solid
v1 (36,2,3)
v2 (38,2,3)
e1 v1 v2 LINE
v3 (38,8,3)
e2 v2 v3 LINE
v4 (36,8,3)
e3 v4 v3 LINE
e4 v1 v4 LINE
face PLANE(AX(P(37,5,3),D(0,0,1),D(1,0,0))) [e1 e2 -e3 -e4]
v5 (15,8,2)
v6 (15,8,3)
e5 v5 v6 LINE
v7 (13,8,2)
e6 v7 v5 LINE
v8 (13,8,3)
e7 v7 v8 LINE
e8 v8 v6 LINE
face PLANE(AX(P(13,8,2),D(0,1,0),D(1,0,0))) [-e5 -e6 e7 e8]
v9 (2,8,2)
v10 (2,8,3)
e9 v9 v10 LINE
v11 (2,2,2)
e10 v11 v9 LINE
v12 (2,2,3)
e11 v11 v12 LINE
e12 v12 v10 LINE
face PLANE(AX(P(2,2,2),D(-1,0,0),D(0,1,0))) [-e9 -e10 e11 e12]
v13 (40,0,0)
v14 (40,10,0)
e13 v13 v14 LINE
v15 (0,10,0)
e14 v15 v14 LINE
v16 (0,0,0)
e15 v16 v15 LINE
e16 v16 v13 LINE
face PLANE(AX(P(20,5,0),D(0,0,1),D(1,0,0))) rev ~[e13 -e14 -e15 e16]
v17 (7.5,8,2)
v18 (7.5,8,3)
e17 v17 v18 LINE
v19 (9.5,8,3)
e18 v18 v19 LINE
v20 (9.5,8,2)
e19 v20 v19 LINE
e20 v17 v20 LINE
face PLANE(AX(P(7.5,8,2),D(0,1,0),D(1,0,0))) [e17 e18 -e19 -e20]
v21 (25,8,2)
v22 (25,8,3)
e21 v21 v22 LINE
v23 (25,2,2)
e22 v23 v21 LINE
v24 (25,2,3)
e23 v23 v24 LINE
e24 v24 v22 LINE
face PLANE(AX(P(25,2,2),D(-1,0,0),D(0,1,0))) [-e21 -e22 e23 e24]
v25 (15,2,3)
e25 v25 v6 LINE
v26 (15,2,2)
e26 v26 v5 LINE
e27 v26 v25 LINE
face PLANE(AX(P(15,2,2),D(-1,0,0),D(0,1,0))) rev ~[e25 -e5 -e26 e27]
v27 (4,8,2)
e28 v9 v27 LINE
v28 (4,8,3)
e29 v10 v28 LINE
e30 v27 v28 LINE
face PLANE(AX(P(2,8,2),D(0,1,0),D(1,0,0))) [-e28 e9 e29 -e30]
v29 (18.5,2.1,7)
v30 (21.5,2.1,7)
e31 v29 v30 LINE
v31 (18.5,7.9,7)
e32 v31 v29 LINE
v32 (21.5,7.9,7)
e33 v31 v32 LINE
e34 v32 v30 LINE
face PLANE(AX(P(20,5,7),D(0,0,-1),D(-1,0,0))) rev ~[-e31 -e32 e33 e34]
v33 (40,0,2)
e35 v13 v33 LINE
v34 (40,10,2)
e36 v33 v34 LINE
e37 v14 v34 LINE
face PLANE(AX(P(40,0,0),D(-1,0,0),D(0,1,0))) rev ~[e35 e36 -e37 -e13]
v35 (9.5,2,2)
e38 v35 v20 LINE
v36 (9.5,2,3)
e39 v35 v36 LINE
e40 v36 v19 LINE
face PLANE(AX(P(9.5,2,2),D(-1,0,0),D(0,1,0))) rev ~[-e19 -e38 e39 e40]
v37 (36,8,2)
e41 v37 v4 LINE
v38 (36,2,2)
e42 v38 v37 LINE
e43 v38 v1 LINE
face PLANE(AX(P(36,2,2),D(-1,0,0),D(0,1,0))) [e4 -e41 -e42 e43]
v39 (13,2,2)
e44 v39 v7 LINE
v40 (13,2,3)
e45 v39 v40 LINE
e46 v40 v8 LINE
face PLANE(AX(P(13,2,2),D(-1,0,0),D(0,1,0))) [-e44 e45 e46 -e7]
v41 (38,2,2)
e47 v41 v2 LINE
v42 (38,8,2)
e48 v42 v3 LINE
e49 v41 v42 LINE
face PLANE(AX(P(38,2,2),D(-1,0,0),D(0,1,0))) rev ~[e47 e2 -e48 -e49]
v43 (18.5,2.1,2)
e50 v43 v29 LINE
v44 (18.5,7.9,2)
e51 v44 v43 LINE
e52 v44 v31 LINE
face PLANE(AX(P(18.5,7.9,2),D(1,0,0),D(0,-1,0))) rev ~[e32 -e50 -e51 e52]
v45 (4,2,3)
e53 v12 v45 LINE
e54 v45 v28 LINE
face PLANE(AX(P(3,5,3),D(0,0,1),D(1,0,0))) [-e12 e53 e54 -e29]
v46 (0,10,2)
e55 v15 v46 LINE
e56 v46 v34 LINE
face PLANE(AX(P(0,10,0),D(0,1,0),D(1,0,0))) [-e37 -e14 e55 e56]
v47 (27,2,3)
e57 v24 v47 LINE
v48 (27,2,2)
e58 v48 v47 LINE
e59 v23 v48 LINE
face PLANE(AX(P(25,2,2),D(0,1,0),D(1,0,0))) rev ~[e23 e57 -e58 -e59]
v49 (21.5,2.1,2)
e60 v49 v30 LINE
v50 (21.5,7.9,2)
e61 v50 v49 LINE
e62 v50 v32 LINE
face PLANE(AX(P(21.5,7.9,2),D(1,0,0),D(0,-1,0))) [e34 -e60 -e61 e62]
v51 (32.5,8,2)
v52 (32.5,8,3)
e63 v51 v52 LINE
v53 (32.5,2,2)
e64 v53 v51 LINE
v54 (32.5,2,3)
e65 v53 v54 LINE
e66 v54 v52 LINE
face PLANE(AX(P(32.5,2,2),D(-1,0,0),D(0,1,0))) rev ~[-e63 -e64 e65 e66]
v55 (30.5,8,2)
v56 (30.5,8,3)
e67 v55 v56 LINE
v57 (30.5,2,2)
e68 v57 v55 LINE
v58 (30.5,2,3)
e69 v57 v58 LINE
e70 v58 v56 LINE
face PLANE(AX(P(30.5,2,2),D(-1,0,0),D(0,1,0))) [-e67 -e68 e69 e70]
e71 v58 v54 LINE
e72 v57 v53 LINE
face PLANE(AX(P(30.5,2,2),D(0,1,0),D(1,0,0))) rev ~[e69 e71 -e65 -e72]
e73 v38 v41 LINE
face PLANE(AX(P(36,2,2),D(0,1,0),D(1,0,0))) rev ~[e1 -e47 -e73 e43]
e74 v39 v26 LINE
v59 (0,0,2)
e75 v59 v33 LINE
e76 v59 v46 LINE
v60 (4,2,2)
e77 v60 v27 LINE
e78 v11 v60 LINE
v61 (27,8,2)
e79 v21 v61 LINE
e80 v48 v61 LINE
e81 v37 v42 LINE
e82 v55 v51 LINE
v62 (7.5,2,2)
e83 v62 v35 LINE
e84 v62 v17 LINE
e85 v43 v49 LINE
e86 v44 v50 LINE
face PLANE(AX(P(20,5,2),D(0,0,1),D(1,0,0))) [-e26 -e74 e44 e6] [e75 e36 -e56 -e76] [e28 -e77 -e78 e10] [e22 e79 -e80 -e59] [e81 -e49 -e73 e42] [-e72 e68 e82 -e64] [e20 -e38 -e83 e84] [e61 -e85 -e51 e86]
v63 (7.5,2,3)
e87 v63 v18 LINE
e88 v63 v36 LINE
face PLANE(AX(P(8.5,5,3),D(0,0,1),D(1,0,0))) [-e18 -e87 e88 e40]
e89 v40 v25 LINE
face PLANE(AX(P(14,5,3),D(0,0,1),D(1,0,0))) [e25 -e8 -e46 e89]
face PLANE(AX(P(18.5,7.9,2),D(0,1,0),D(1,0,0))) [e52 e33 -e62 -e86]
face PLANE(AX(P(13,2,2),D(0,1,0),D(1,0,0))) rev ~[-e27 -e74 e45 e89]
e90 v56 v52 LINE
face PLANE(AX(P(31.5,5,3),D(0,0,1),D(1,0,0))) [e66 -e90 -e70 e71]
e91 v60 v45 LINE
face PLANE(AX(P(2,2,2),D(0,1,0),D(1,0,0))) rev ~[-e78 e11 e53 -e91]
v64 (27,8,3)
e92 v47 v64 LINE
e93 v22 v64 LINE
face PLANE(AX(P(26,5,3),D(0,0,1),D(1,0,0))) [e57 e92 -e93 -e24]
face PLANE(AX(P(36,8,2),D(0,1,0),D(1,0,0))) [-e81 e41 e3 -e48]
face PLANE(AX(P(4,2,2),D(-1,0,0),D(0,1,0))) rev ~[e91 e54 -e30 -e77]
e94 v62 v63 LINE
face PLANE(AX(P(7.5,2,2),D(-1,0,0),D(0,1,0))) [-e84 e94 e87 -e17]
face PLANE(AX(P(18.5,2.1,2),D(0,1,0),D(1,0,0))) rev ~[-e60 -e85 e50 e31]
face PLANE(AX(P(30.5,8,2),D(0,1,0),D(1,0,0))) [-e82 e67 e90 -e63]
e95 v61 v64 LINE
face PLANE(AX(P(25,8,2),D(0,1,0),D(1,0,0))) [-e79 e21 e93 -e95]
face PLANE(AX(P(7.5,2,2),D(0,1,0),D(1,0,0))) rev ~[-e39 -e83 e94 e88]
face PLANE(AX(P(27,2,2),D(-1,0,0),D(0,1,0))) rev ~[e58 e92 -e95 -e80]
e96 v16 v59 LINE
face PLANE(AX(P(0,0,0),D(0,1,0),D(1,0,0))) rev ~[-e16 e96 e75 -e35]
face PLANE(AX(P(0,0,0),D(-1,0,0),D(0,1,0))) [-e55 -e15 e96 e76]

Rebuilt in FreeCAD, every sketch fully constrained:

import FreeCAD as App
import Part
import Sketcher
from FreeCAD import Vector
Q = App.Units.Quantity

doc = App.newDocument("Part")
body = doc.addObject("PartDesign::Body", "Body")

# Sketch on XY plane
sketch1 = doc.addObject("Sketcher::SketchObject", "Sketch")
body.addObject(sketch1)
sketch1.AttachmentSupport = (doc.XY_Plane, [""])
sketch1.MapMode = "FlatFace"
sketch1.addGeometry(Part.LineSegment(Vector(0, 10, 0), Vector(0, 0, 0)), False)
sketch1.addGeometry(Part.LineSegment(Vector(0, 0, 0), Vector(40, 0, 0)), False)
sketch1.addGeometry(Part.LineSegment(Vector(40, 0, 0), Vector(40, 10, 0)), False)
sketch1.addGeometry(Part.LineSegment(Vector(40, 10, 0), Vector(0, 10, 0)), False)
sketch1.addConstraint(Sketcher.Constraint("Coincident", 0, 2, 1, 1))
sketch1.addConstraint(Sketcher.Constraint("Coincident", 1, 2, 2, 1))
sketch1.addConstraint(Sketcher.Constraint("Coincident", 2, 2, 3, 1))
sketch1.addConstraint(Sketcher.Constraint("Coincident", 3, 2, 0, 1))
sketch1.addConstraint(Sketcher.Constraint("Vertical", 0))
sketch1.addConstraint(Sketcher.Constraint("Horizontal", 1))
sketch1.addConstraint(Sketcher.Constraint("Vertical", 2))
sketch1.addConstraint(Sketcher.Constraint("Horizontal", 3))
sketch1.addConstraint(Sketcher.Constraint("Coincident", 0, 2, -1, 1))
sketch1.addConstraint(Sketcher.Constraint("DistanceX", 1, 1, 1, 2, Q("40 mm")))
sketch1.addConstraint(Sketcher.Constraint("DistanceY", 0, 2, 0, 1, Q("10 mm")))
pad1 = doc.addObject("PartDesign::Pad", "Pad")
body.addObject(pad1)
pad1.Profile = sketch1
pad1.Length = 2

# Sketch on XY plane
sketch2 = doc.addObject("Sketcher::SketchObject", "Sketch001")
body.addObject(sketch2)
sketch2.AttachmentSupport = (doc.XY_Plane, [""])
sketch2.MapMode = "FlatFace"
sketch2.AttachmentOffset = App.Placement(Vector(0, 0, 2), App.Rotation())
sketch2.addGeometry(Part.LineSegment(Vector(18.5, 7.9, 0), Vector(18.5, 2.1, 0)), False)
sketch2.addGeometry(Part.LineSegment(Vector(18.5, 2.1, 0), Vector(21.5, 2.1, 0)), False)
sketch2.addGeometry(Part.LineSegment(Vector(21.5, 2.1, 0), Vector(21.5, 7.9, 0)), False)
sketch2.addGeometry(Part.LineSegment(Vector(21.5, 7.9, 0), Vector(18.5, 7.9, 0)), False)
sketch2.addConstraint(Sketcher.Constraint("Coincident", 0, 2, 1, 1))
sketch2.addConstraint(Sketcher.Constraint("Coincident", 1, 2, 2, 1))
sketch2.addConstraint(Sketcher.Constraint("Coincident", 2, 2, 3, 1))
sketch2.addConstraint(Sketcher.Constraint("Coincident", 3, 2, 0, 1))
sketch2.addConstraint(Sketcher.Constraint("Vertical", 0))
sketch2.addConstraint(Sketcher.Constraint("Horizontal", 1))
sketch2.addConstraint(Sketcher.Constraint("Vertical", 2))
sketch2.addConstraint(Sketcher.Constraint("Horizontal", 3))
sketch2.addConstraint(Sketcher.Constraint("DistanceX", 1, 1, 1, 2, Q("3 mm")))
sketch2.addConstraint(Sketcher.Constraint("DistanceY", 0, 2, 0, 1, Q("5.8 mm")))
sketch2.addConstraint(Sketcher.Constraint("DistanceX", -1, 1, 0, 2, Q("18.5 mm")))
sketch2.addConstraint(Sketcher.Constraint("DistanceY", -1, 1, 0, 2, Q("2.1 mm")))
pad2 = doc.addObject("PartDesign::Pad", "Pad001")
body.addObject(pad2)
pad2.Profile = sketch2
pad2.Length = 5

# Sketch on XY plane
sketch3 = doc.addObject("Sketcher::SketchObject", "Sketch002")
body.addObject(sketch3)
sketch3.AttachmentSupport = (doc.XY_Plane, [""])
sketch3.MapMode = "FlatFace"
sketch3.AttachmentOffset = App.Placement(Vector(0, 0, 2), App.Rotation())
sketch3.addGeometry(Part.LineSegment(Vector(2, 8, 0), Vector(2, 2, 0)), False)
sketch3.addGeometry(Part.LineSegment(Vector(2, 2, 0), Vector(4, 2, 0)), False)
sketch3.addGeometry(Part.LineSegment(Vector(4, 2, 0), Vector(4, 8, 0)), False)
sketch3.addGeometry(Part.LineSegment(Vector(4, 8, 0), Vector(2, 8, 0)), False)
sketch3.addGeometry(Part.LineSegment(Vector(7.5, 8, 0), Vector(7.5, 2, 0)), False)
sketch3.addGeometry(Part.LineSegment(Vector(7.5, 2, 0), Vector(9.5, 2, 0)), False)
sketch3.addGeometry(Part.LineSegment(Vector(9.5, 2, 0), Vector(9.5, 8, 0)), False)
sketch3.addGeometry(Part.LineSegment(Vector(9.5, 8, 0), Vector(7.5, 8, 0)), False)
sketch3.addGeometry(Part.LineSegment(Vector(13, 8, 0), Vector(13, 2, 0)), False)
sketch3.addGeometry(Part.LineSegment(Vector(13, 2, 0), Vector(15, 2, 0)), False)
sketch3.addGeometry(Part.LineSegment(Vector(15, 2, 0), Vector(15, 8, 0)), False)
sketch3.addGeometry(Part.LineSegment(Vector(15, 8, 0), Vector(13, 8, 0)), False)
sketch3.addGeometry(Part.LineSegment(Vector(25, 8, 0), Vector(25, 2, 0)), False)
sketch3.addGeometry(Part.LineSegment(Vector(25, 2, 0), Vector(27, 2, 0)), False)
sketch3.addGeometry(Part.LineSegment(Vector(27, 2, 0), Vector(27, 8, 0)), False)
sketch3.addGeometry(Part.LineSegment(Vector(27, 8, 0), Vector(25, 8, 0)), False)
sketch3.addGeometry(Part.LineSegment(Vector(30.5, 8, 0), Vector(30.5, 2, 0)), False)
sketch3.addGeometry(Part.LineSegment(Vector(30.5, 2, 0), Vector(32.5, 2, 0)), False)
sketch3.addGeometry(Part.LineSegment(Vector(32.5, 2, 0), Vector(32.5, 8, 0)), False)
sketch3.addGeometry(Part.LineSegment(Vector(32.5, 8, 0), Vector(30.5, 8, 0)), False)
sketch3.addGeometry(Part.LineSegment(Vector(36, 8, 0), Vector(36, 2, 0)), False)
sketch3.addGeometry(Part.LineSegment(Vector(36, 2, 0), Vector(38, 2, 0)), False)
sketch3.addGeometry(Part.LineSegment(Vector(38, 2, 0), Vector(38, 8, 0)), False)
sketch3.addGeometry(Part.LineSegment(Vector(38, 8, 0), Vector(36, 8, 0)), False)
sketch3.addConstraint(Sketcher.Constraint("Coincident", 0, 2, 1, 1))
sketch3.addConstraint(Sketcher.Constraint("Coincident", 1, 2, 2, 1))
sketch3.addConstraint(Sketcher.Constraint("Coincident", 2, 2, 3, 1))
sketch3.addConstraint(Sketcher.Constraint("Coincident", 3, 2, 0, 1))
sketch3.addConstraint(Sketcher.Constraint("Coincident", 4, 2, 5, 1))
sketch3.addConstraint(Sketcher.Constraint("Coincident", 5, 2, 6, 1))
sketch3.addConstraint(Sketcher.Constraint("Coincident", 6, 2, 7, 1))
sketch3.addConstraint(Sketcher.Constraint("Coincident", 7, 2, 4, 1))
sketch3.addConstraint(Sketcher.Constraint("Coincident", 8, 2, 9, 1))
sketch3.addConstraint(Sketcher.Constraint("Coincident", 9, 2, 10, 1))
sketch3.addConstraint(Sketcher.Constraint("Coincident", 10, 2, 11, 1))
sketch3.addConstraint(Sketcher.Constraint("Coincident", 11, 2, 8, 1))
sketch3.addConstraint(Sketcher.Constraint("Coincident", 12, 2, 13, 1))
sketch3.addConstraint(Sketcher.Constraint("Coincident", 13, 2, 14, 1))
sketch3.addConstraint(Sketcher.Constraint("Coincident", 14, 2, 15, 1))
sketch3.addConstraint(Sketcher.Constraint("Coincident", 15, 2, 12, 1))
sketch3.addConstraint(Sketcher.Constraint("Coincident", 16, 2, 17, 1))
sketch3.addConstraint(Sketcher.Constraint("Coincident", 17, 2, 18, 1))
sketch3.addConstraint(Sketcher.Constraint("Coincident", 18, 2, 19, 1))
sketch3.addConstraint(Sketcher.Constraint("Coincident", 19, 2, 16, 1))
sketch3.addConstraint(Sketcher.Constraint("Coincident", 20, 2, 21, 1))
sketch3.addConstraint(Sketcher.Constraint("Coincident", 21, 2, 22, 1))
sketch3.addConstraint(Sketcher.Constraint("Coincident", 22, 2, 23, 1))
sketch3.addConstraint(Sketcher.Constraint("Coincident", 23, 2, 20, 1))
sketch3.addConstraint(Sketcher.Constraint("Vertical", 0))
sketch3.addConstraint(Sketcher.Constraint("Horizontal", 1))
sketch3.addConstraint(Sketcher.Constraint("Vertical", 2))
sketch3.addConstraint(Sketcher.Constraint("Horizontal", 3))
sketch3.addConstraint(Sketcher.Constraint("Vertical", 4))
sketch3.addConstraint(Sketcher.Constraint("Horizontal", 5))
sketch3.addConstraint(Sketcher.Constraint("Vertical", 6))
sketch3.addConstraint(Sketcher.Constraint("Horizontal", 7))
sketch3.addConstraint(Sketcher.Constraint("Vertical", 8))
sketch3.addConstraint(Sketcher.Constraint("Horizontal", 9))
sketch3.addConstraint(Sketcher.Constraint("Vertical", 10))
sketch3.addConstraint(Sketcher.Constraint("Horizontal", 11))
sketch3.addConstraint(Sketcher.Constraint("Vertical", 12))
sketch3.addConstraint(Sketcher.Constraint("Horizontal", 13))
sketch3.addConstraint(Sketcher.Constraint("Vertical", 14))
sketch3.addConstraint(Sketcher.Constraint("Horizontal", 15))
sketch3.addConstraint(Sketcher.Constraint("Vertical", 16))
sketch3.addConstraint(Sketcher.Constraint("Horizontal", 17))
sketch3.addConstraint(Sketcher.Constraint("Vertical", 18))
sketch3.addConstraint(Sketcher.Constraint("Horizontal", 19))
sketch3.addConstraint(Sketcher.Constraint("Vertical", 20))
sketch3.addConstraint(Sketcher.Constraint("Horizontal", 21))
sketch3.addConstraint(Sketcher.Constraint("Vertical", 22))
sketch3.addConstraint(Sketcher.Constraint("Horizontal", 23))
sketch3.addConstraint(Sketcher.Constraint("Horizontal", 1, 2, 4, 2))
sketch3.addConstraint(Sketcher.Constraint("Horizontal", 3, 2, 6, 2))
sketch3.addConstraint(Sketcher.Constraint("Horizontal", 5, 2, 8, 2))
sketch3.addConstraint(Sketcher.Constraint("Horizontal", 7, 2, 10, 2))
sketch3.addConstraint(Sketcher.Constraint("Horizontal", 9, 2, 12, 2))
sketch3.addConstraint(Sketcher.Constraint("Horizontal", 11, 2, 14, 2))
sketch3.addConstraint(Sketcher.Constraint("Horizontal", 13, 2, 16, 2))
sketch3.addConstraint(Sketcher.Constraint("Horizontal", 15, 2, 18, 2))
sketch3.addConstraint(Sketcher.Constraint("Horizontal", 17, 2, 20, 2))
sketch3.addConstraint(Sketcher.Constraint("Horizontal", 19, 2, 22, 2))
sketch3.addConstraint(Sketcher.Constraint("Equal", 3, 5))
sketch3.addConstraint(Sketcher.Constraint("Equal", 7, 9))
sketch3.addConstraint(Sketcher.Constraint("Equal", 11, 13))
sketch3.addConstraint(Sketcher.Constraint("Equal", 15, 17))
sketch3.addConstraint(Sketcher.Constraint("Equal", 19, 21))
sketch3.addConstraint(Sketcher.Constraint("DistanceX", 1, 1, 1, 2, Q("2 mm")))
sketch3.addConstraint(Sketcher.Constraint("DistanceY", 0, 2, 0, 1, Q("6 mm")))
sketch3.addConstraint(Sketcher.Constraint("DistanceX", -1, 1, 0, 2, Q("2 mm")))
sketch3.addConstraint(Sketcher.Constraint("DistanceY", -1, 1, 0, 2, Q("2 mm")))
sketch3.addConstraint(Sketcher.Constraint("DistanceX", -1, 1, 8, 2, Q("13 mm")))
sketch3.addConstraint(Sketcher.Constraint("DistanceX", -1, 1, 12, 2, Q("25 mm")))
sketch3.addConstraint(Sketcher.Constraint("DistanceX", -1, 1, 20, 2, Q("36 mm")))
sketch3.addConstraint(Sketcher.Constraint("DistanceX", -1, 1, 4, 2, Q("7.5 mm")))
sketch3.addConstraint(Sketcher.Constraint("DistanceX", -1, 1, 16, 2, Q("30.5 mm")))
pad3 = doc.addObject("PartDesign::Pad", "Pad002")
body.addObject(pad3)
pad3.Profile = sketch3
pad3.Length = 1

doc.recompute()
